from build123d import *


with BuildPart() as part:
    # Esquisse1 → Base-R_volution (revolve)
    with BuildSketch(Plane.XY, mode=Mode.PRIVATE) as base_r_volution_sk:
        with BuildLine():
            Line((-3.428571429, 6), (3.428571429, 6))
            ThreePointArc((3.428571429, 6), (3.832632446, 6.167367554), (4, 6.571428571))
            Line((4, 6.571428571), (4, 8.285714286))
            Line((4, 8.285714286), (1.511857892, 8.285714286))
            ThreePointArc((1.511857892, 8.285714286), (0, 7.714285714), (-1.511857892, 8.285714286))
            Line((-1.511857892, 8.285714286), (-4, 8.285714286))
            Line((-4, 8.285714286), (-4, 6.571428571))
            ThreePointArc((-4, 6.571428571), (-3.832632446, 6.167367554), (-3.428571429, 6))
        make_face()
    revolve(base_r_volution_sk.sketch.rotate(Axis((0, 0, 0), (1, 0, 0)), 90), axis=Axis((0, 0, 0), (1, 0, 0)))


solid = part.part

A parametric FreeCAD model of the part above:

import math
import FreeCAD as App
import Part
import Sketcher

V = App.Vector
Q = App.Units.Quantity

doc = App.newDocument("Part")
body = doc.addObject("PartDesign::Body", "Body")

sketch1 = body.newObject("Sketcher::SketchObject", "Sketch")
sketch1.AttachmentSupport = (doc.getObject("XY_Plane"), [""])
sketch1.MapMode = "FlatFace"
sketch1.addGeometry([
    Part.LineSegment(V(-3.4, 6, 0), V(3.4, 6, 0)),
    Part.ArcOfCircle(Part.Circle(V(3.4, 6.6, 0), V(0, 0, 1), 0.6), math.radians(-90), math.radians(0)),
    Part.LineSegment(V(4, 6.6, 0), V(4, 8.3, 0)),
    Part.LineSegment(V(4, 8.3, 0), V(1.5, 8.3, 0)),
    Part.ArcOfCircle(Part.Circle(V(0, 10, 0), V(0, 0, 1), 2.3), math.radians(-131), math.radians(-49)),
    Part.LineSegment(V(-1.5, 8.3, 0), V(-4, 8.3, 0)),
    Part.LineSegment(V(-4, 8.3, 0), V(-4, 6.6, 0)),
    Part.ArcOfCircle(Part.Circle(V(-3.4, 6.6, 0), V(0, 0, 1), 0.6), math.radians(-180), math.radians(-90)),
], False)
sketch1.addConstraint([
    Sketcher.Constraint("Tangent", 0, 2, 1, 1),
    Sketcher.Constraint("Tangent", 1, 2, 2, 1),
    Sketcher.Constraint("Coincident", 2, 2, 3, 1),
    Sketcher.Constraint("Coincident", 3, 2, 4, 2),
    Sketcher.Constraint("Coincident", 4, 1, 5, 1),
    Sketcher.Constraint("Coincident", 5, 2, 6, 1),
    Sketcher.Constraint("Tangent", 6, 2, 7, 1),
    Sketcher.Constraint("Tangent", 7, 2, 0, 1),
    Sketcher.Constraint("Horizontal", 0),
    Sketcher.Constraint("Vertical", 2),
    Sketcher.Constraint("Horizontal", 3),
    Sketcher.Constraint("Horizontal", 5),
    Sketcher.Constraint("Vertical", 6),
    Sketcher.Constraint("Equal", 1, 7),
    Sketcher.Constraint("Symmetric", 3, 2, 4, 1, -2),
    Sketcher.Constraint("Equal", 3, 5),
    Sketcher.Constraint("DistanceY", -1, 1, 4, 3, Q("10 mm")),
    Sketcher.Constraint("DistanceY", -1, 1, 0, 2, Q("6 mm")),
    Sketcher.Constraint("DistanceX", -1, 1, 1, 2, Q("4 mm")),
    Sketcher.Constraint("Radius", 1, Q("0.571429 mm")),
    Sketcher.Constraint("Radius", 4, Q("2.285714 mm")),
    Sketcher.Constraint("DistanceX", 3, 2, 3, 1, Q("2.488142 mm")),
])
revolution = body.newObject("PartDesign::Revolution", "Revolution")
revolution.Profile = sketch1
revolution.ReferenceAxis = (sketch1, ["H_Axis"])
revolution.Angle = 360

doc.recompute()
